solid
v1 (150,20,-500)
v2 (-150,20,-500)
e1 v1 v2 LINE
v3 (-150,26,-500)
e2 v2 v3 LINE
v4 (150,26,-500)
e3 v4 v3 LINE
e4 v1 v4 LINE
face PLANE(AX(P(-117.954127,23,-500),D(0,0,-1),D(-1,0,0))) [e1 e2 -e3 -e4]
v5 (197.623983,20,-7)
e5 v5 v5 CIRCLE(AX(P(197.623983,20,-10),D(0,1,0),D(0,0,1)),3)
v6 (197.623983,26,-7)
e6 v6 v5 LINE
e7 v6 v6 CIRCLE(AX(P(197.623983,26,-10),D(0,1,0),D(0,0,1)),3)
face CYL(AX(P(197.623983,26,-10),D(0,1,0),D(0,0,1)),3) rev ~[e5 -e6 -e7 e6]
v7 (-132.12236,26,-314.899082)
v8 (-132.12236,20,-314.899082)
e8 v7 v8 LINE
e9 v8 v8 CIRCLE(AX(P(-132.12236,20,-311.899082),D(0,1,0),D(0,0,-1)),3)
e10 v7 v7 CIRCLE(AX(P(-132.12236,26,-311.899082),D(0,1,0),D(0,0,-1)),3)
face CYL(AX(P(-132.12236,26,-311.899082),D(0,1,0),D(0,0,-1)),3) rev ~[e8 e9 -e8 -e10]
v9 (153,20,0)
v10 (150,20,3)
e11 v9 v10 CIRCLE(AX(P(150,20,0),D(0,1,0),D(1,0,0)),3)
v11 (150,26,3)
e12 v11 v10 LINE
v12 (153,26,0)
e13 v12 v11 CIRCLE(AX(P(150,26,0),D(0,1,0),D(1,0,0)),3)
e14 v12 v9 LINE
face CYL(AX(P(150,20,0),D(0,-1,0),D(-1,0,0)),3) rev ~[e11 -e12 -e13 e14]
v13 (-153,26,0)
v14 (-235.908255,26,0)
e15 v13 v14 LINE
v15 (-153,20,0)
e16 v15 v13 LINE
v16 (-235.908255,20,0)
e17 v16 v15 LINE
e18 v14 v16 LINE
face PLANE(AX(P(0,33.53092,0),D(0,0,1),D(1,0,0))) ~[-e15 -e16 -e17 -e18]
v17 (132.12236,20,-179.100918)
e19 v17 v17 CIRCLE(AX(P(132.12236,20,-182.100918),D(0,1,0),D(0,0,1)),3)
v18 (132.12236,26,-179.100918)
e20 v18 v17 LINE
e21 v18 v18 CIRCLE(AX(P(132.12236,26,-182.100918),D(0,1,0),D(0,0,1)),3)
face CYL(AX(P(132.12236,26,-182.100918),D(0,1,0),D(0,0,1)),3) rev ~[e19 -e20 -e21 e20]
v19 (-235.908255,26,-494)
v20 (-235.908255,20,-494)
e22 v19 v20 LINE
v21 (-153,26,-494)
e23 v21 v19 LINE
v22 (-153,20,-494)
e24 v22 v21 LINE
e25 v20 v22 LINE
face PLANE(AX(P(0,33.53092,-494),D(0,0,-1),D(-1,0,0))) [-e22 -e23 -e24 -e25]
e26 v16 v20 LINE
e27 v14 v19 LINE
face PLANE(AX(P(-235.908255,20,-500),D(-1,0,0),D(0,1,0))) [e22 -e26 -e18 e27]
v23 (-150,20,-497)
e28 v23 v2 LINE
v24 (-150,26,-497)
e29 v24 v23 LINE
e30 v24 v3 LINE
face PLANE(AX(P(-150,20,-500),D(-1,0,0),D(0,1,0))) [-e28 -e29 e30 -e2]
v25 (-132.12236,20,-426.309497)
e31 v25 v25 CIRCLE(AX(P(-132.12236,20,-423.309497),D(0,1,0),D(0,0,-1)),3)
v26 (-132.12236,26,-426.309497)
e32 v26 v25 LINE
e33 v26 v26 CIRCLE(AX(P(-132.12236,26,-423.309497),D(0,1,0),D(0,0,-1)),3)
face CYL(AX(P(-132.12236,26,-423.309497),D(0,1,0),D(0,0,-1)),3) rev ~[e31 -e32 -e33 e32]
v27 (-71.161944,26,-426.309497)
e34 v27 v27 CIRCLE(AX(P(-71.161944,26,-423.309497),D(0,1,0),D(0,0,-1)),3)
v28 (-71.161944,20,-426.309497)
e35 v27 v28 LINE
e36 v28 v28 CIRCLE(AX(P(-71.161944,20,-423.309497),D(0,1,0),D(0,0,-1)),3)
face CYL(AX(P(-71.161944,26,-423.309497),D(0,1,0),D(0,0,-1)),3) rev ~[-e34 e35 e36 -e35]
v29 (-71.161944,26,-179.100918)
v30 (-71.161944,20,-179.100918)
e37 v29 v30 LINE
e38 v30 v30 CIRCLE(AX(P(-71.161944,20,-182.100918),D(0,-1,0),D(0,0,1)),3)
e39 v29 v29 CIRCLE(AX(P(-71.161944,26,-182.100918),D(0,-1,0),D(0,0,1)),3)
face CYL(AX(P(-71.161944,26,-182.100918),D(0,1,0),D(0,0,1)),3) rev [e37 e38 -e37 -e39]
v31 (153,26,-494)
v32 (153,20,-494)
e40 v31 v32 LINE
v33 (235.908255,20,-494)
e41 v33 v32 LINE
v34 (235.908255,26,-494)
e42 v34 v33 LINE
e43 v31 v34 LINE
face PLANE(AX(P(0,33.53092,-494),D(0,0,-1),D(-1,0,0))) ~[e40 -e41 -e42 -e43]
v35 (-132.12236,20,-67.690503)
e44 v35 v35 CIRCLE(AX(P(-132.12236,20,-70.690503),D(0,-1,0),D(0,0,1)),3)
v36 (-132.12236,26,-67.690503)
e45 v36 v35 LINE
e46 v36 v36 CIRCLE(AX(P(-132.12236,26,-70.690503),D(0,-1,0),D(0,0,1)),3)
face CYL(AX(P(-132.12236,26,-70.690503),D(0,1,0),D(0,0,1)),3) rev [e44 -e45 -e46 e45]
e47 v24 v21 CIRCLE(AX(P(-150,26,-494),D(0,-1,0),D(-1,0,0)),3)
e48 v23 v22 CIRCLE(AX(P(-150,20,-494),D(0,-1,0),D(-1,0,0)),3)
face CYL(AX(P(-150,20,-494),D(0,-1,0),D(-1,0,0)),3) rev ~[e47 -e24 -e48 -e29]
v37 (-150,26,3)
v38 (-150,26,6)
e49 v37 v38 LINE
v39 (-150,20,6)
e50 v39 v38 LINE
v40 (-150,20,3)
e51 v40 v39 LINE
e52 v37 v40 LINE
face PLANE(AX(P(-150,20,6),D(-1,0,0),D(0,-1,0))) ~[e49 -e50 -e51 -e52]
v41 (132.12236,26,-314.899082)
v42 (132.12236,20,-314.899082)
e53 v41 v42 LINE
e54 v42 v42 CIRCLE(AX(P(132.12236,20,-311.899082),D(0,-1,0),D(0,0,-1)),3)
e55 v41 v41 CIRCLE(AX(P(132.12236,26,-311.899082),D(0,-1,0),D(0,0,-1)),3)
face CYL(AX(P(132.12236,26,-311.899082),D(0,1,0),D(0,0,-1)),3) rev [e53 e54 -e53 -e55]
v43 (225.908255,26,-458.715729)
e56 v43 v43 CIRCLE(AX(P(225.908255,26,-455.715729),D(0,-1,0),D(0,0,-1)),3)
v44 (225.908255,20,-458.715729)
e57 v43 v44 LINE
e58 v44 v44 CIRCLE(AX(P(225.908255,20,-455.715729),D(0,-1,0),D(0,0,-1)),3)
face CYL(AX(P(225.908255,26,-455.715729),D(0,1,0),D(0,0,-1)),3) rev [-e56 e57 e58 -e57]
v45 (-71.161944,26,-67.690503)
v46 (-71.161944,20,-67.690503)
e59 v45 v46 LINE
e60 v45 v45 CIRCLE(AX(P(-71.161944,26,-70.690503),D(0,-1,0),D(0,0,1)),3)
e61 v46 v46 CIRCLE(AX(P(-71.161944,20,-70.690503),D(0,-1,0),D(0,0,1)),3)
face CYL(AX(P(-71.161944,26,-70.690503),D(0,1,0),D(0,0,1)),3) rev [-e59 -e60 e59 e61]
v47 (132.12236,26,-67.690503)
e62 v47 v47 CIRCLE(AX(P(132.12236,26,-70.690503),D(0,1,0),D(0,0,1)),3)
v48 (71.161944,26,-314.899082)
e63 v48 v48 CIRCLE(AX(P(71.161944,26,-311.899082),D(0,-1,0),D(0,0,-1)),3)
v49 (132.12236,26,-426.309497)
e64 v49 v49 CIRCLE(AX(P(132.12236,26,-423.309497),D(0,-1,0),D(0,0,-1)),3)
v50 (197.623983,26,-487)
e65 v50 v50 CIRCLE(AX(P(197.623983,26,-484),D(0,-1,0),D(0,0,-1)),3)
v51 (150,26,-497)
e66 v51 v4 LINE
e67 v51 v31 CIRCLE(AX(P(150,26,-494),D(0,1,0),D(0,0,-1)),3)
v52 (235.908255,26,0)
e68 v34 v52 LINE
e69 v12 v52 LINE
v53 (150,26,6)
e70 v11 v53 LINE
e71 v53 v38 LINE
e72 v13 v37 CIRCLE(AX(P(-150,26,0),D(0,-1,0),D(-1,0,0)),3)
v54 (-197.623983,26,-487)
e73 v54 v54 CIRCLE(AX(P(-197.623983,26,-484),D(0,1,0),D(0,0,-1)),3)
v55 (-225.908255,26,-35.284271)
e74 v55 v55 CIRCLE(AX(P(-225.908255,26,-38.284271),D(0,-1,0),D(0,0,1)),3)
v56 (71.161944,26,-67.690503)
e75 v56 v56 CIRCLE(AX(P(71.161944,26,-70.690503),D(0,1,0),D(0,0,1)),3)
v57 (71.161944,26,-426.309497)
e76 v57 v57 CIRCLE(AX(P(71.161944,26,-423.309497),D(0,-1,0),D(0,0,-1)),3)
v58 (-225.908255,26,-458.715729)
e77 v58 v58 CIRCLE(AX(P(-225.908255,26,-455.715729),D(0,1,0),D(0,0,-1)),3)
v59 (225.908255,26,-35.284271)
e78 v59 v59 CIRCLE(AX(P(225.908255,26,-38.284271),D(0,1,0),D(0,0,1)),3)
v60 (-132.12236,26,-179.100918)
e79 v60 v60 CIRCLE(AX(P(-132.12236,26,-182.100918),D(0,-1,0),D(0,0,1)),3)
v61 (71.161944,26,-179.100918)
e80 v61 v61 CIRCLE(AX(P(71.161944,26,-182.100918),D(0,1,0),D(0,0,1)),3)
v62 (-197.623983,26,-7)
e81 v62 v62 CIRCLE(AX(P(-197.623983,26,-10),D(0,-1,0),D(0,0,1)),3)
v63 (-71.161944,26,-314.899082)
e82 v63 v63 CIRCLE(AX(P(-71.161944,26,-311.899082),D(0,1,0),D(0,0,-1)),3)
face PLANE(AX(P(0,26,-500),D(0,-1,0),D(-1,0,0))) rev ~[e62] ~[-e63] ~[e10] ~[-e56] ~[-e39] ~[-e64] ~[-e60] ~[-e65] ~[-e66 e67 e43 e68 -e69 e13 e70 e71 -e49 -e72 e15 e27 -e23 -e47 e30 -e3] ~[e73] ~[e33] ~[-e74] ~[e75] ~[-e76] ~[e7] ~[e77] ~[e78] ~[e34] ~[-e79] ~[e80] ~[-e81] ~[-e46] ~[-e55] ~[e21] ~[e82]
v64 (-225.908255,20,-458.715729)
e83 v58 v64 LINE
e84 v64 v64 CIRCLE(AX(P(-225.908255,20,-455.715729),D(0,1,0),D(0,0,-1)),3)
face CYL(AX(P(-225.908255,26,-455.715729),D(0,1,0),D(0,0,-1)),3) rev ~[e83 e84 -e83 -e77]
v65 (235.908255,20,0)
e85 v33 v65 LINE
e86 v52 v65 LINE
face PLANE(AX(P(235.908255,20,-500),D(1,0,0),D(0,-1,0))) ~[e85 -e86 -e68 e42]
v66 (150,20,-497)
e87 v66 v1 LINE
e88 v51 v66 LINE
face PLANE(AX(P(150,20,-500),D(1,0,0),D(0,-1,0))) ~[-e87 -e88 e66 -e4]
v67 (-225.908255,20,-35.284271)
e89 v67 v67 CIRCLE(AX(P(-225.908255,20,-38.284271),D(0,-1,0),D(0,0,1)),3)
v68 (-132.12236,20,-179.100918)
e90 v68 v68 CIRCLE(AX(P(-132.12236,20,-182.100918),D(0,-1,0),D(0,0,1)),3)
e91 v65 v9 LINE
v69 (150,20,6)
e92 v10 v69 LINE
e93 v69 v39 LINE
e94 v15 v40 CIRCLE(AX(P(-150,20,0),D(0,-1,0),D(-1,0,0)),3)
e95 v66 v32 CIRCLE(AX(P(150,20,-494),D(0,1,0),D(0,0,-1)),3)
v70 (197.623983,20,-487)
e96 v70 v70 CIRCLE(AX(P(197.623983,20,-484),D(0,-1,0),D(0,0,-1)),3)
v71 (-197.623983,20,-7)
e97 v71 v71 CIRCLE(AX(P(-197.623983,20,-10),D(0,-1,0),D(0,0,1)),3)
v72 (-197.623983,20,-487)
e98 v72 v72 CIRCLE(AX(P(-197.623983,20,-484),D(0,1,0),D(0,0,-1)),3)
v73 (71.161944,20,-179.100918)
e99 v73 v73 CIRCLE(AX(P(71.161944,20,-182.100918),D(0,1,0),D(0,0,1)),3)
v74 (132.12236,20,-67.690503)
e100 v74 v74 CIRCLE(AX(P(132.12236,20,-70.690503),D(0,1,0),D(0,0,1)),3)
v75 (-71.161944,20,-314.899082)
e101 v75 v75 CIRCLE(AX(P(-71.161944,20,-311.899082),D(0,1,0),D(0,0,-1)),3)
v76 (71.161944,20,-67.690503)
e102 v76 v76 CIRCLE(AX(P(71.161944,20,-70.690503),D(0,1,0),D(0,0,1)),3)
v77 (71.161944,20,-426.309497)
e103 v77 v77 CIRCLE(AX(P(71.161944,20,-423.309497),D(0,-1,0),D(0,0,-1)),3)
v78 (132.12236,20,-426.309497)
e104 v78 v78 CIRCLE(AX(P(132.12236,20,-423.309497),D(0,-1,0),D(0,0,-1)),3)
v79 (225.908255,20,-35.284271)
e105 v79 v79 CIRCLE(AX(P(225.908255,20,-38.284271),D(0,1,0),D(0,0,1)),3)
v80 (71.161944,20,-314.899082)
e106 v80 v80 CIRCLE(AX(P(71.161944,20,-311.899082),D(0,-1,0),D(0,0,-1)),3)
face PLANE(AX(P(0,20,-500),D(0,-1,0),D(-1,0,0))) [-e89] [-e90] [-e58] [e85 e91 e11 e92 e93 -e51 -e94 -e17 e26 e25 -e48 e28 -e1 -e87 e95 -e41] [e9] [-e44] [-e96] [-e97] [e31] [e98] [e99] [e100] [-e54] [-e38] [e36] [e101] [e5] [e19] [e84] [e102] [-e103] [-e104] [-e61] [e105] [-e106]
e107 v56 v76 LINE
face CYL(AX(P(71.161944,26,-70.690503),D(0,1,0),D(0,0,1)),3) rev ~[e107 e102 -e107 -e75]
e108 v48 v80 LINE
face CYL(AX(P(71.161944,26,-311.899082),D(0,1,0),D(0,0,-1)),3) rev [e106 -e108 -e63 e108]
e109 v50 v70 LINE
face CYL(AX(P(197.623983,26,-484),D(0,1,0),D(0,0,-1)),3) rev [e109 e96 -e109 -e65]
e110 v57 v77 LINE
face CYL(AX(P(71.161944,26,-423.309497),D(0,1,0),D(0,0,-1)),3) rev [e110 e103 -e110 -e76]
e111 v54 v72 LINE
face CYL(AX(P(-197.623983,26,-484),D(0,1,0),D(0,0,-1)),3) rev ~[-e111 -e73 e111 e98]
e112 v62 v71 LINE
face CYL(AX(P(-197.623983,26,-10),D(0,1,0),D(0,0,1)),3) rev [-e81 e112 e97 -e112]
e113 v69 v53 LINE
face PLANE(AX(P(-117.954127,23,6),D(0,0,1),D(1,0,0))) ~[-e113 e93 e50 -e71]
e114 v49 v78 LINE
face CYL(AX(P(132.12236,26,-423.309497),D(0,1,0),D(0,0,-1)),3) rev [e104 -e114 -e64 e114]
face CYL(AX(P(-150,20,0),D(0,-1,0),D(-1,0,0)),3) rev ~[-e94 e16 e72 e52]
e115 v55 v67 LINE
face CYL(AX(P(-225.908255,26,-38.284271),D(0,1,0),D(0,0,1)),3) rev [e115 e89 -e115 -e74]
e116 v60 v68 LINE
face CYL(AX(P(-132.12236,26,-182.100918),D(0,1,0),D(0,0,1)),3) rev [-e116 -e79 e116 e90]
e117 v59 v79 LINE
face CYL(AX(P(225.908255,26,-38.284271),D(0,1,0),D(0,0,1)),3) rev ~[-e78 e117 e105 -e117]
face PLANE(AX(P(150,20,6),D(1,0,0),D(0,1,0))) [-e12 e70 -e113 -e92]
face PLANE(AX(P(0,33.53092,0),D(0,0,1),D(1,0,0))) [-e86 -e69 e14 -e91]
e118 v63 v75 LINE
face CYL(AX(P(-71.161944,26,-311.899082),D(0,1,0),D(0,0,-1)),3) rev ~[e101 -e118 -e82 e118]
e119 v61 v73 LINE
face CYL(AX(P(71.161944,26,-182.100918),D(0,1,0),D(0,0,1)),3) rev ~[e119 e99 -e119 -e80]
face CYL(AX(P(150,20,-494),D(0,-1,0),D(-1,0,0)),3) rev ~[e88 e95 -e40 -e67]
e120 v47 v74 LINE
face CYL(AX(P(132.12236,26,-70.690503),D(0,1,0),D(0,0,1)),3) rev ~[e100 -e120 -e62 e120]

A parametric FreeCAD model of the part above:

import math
import FreeCAD as App
import Part
import Sketcher
from FreeCAD import Vector
Q = App.Units.Quantity

doc = App.newDocument("Part")
params = doc.addObject("Spreadsheet::Sheet", "Params")
for row, (alias, value) in enumerate([
    ("sketch1_radius", "50 mm"),
    ("sketch1_radius2", "3 mm"),
    ("sketch1_width", "400 mm"),
    ("sketch1_width2", "80 mm"),
    ("sketch1_width3", "60 mm"),
    ("pad1_length", "6 mm"),
    ("pocket1_length", "10 mm"),
    ("sketch3_radius", "50 mm"),
    ("sketch3_width", "200 mm"),
    ("sketch3_height", "61 mm"),
    ("sketch3_height2", "32.24 mm"),
    ("pad2_length", "6 mm"),
    ("sketch4_height", "6 mm"),
    ("pad3_length", "253 mm"),
    ("sketch5_height", "6 mm"),
    ("pocket2_length", "6 mm"),
    ("sketch6_diameter", "6 mm"),
    ("sketch7_diameter", "6 mm"),
], start=1):
    params.set(f"A{row}", alias)
    params.set(f"B{row}", "=" + value)
    params.setAlias(f"B{row}", alias)

body = doc.addObject("PartDesign::Body", "Body")

sketch1 = body.newObject("Sketcher::SketchObject", "Sketch")
sketch1.AttachmentSupport = (doc.getObject("XY_Plane"), [""])
sketch1.MapMode = "FlatFace"
sketch1.addGeometry([
    Part.LineSegment(Vector(-200, 0, 0), Vector(200, 0, 0)),
    Part.ArcOfCircle(Part.Circle(Vector(250, 0, 0), Vector(0, 0, 1), 50), math.radians(-180), math.radians(-143)),
    Part.LineSegment(Vector(210, -30, 0), Vector(290, -30, 0)),
    Part.ArcOfCircle(Part.Circle(Vector(250, 0, 0), Vector(0, 0, 1), 50), math.radians(-37), math.radians(38)),
    Part.ArcOfCircle(Part.Circle(Vector(250, 61, 0), Vector(0, 0, 1), 50), math.radians(-38), math.radians(72)),
    Part.LineSegment(Vector(265.8, 108.4, 0), Vector(246.4, 36, 0)),
    Part.ArcOfCircle(Part.Circle(Vector(243.5, 36.8, 0), Vector(0, 0, 1), 3), math.radians(165), math.radians(345)),
    Part.LineSegment(Vector(240.6, 37.5, 0), Vector(260, 110, 0)),
    Part.ArcOfCircle(Part.Circle(Vector(250, 61, 0), Vector(0, 0, 1), 50), math.radians(78), math.radians(180)),
    Part.LineSegment(Vector(200, 61, 0), Vector(140, 61, 0)),
    Part.LineSegment(Vector(140, 61, 0), Vector(150.8, 58.4, 0)),
    Part.LineSegment(Vector(150.8, 58.4, 0), Vector(139, 52.7, 0)),
    Part.LineSegment(Vector(139, 52.7, 0), Vector(160.1, 40.2, 0)),
    Part.LineSegment(Vector(160.1, 40.2, 0), Vector(137.6, 43.4, 0)),
    Part.LineSegment(Vector(137.6, 43.4, 0), Vector(153.2, 34.2, 0)),
    Part.LineSegment(Vector(153.2, 34.2, 0), Vector(138.3, 30.3, 0)),
    Part.LineSegment(Vector(138.3, 30.3, 0), Vector(144.2, 26, 0)),
    Part.LineSegment(Vector(144.2, 26, 0), Vector(150, 26, 0)),
    Part.ArcOfCircle(Part.Circle(Vector(150, 23, 0), Vector(0, 0, 1), 3), math.radians(-90), math.radians(90)),
    Part.LineSegment(Vector(150, 20, 0), Vector(-150, 20, 0)),
    Part.ArcOfCircle(Part.Circle(Vector(-150, 23, 0), Vector(0, 0, 1), 3), math.radians(90), math.radians(270)),
    Part.LineSegment(Vector(-150, 26, 0), Vector(-144.2, 26, 0)),
    Part.LineSegment(Vector(-144.2, 26, 0), Vector(-138.3, 30.3, 0)),
    Part.LineSegment(Vector(-138.3, 30.3, 0), Vector(-153.2, 34.2, 0)),
    Part.LineSegment(Vector(-153.2, 34.2, 0), Vector(-137.6, 43.4, 0)),
    Part.LineSegment(Vector(-137.6, 43.4, 0), Vector(-160.1, 40.2, 0)),
    Part.LineSegment(Vector(-160.1, 40.2, 0), Vector(-139, 52.7, 0)),
    Part.LineSegment(Vector(-139, 52.7, 0), Vector(-150.8, 58.4, 0)),
    Part.LineSegment(Vector(-150.8, 58.4, 0), Vector(-140, 61, 0)),
    Part.LineSegment(Vector(-140, 61, 0), Vector(-200, 61, 0)),
    Part.ArcOfCircle(Part.Circle(Vector(-250, 61, 0), Vector(0, 0, 1), 50), math.radians(0), math.radians(102)),
    Part.LineSegment(Vector(-260, 110, 0), Vector(-240.6, 37.5, 0)),
    Part.ArcOfCircle(Part.Circle(Vector(-243.5, 36.8, 0), Vector(0, 0, 1), 3), math.radians(-165), math.radians(15)),
    Part.LineSegment(Vector(-246.4, 36, 0), Vector(-265.8, 108.4, 0)),
    Part.ArcOfCircle(Part.Circle(Vector(-250, 61, 0), Vector(0, 0, 1), 50), math.radians(108), math.radians(218)),
    Part.ArcOfCircle(Part.Circle(Vector(-250, 0, 0), Vector(0, 0, 1), 50), math.radians(142), math.radians(217)),
    Part.LineSegment(Vector(-290, -30, 0), Vector(-210, -30, 0)),
    Part.ArcOfCircle(Part.Circle(Vector(-250, 0, 0), Vector(0, 0, 1), 50), math.radians(-37), math.radians(0)),
], False)
sketch1.addConstraint([
    Sketcher.Constraint("Coincident", 0, 2, 1, 1),
    Sketcher.Constraint("Coincident", 1, 2, 2, 1),
    Sketcher.Constraint("Coincident", 2, 2, 3, 1),
    Sketcher.Constraint("Coincident", 3, 2, 4, 1),
    Sketcher.Constraint("Coincident", 4, 2, 5, 1),
    Sketcher.Constraint("Tangent", 5, 2, 6, 2),
    Sketcher.Constraint("Tangent", 6, 1, 7, 1),
    Sketcher.Constraint("Coincident", 7, 2, 8, 1),
    Sketcher.Constraint("Coincident", 8, 2, 9, 1),
    Sketcher.Constraint("Coincident", 9, 2, 10, 1),
    Sketcher.Constraint("Coincident", 10, 2, 11, 1),
    Sketcher.Constraint("Coincident", 11, 2, 12, 1),
    Sketcher.Constraint("Coincident", 12, 2, 13, 1),
    Sketcher.Constraint("Coincident", 13, 2, 14, 1),
    Sketcher.Constraint("Coincident", 14, 2, 15, 1),
    Sketcher.Constraint("Coincident", 15, 2, 16, 1),
    Sketcher.Constraint("Coincident", 16, 2, 17, 1),
    Sketcher.Constraint("Tangent", 17, 2, 18, 2),
    Sketcher.Constraint("Tangent", 18, 1, 19, 1),
    Sketcher.Constraint("Tangent", 19, 2, 20, 2),
    Sketcher.Constraint("Tangent", 20, 1, 21, 1),
    Sketcher.Constraint("Coincident", 21, 2, 22, 1),
    Sketcher.Constraint("Coincident", 22, 2, 23, 1),
    Sketcher.Constraint("Coincident", 23, 2, 24, 1),
    Sketcher.Constraint("Coincident", 24, 2, 25, 1),
    Sketcher.Constraint("Coincident", 25, 2, 26, 1),
    Sketcher.Constraint("Coincident", 26, 2, 27, 1),
    Sketcher.Constraint("Coincident", 27, 2, 28, 1),
    Sketcher.Constraint("Coincident", 28, 2, 29, 1),
    Sketcher.Constraint("Coincident", 29, 2, 30, 1),
    Sketcher.Constraint("Coincident", 30, 2, 31, 1),
    Sketcher.Constraint("Tangent", 31, 2, 32, 2),
    Sketcher.Constraint("Tangent", 32, 1, 33, 1),
    Sketcher.Constraint("Coincident", 33, 2, 34, 1),
    Sketcher.Constraint("Coincident", 34, 2, 35, 1),
    Sketcher.Constraint("Coincident", 35, 2, 36, 1),
    Sketcher.Constraint("Coincident", 36, 2, 37, 1),
    Sketcher.Constraint("Coincident", 37, 2, 0, 1),
    Sketcher.Constraint("Horizontal", 0),
    Sketcher.Constraint("Horizontal", 2),
    Sketcher.Constraint("Horizontal", 9),
    Sketcher.Constraint("Horizontal", 17),
    Sketcher.Constraint("Horizontal", 19),
    Sketcher.Constraint("Horizontal", 21),
    Sketcher.Constraint("Horizontal", 29),
    Sketcher.Constraint("Horizontal", 36),
    Sketcher.Constraint("Coincident", 3, 3, 1, 3),
    Sketcher.Constraint("Coincident", 8, 3, 4, 3),
    Sketcher.Constraint("Coincident", 34, 3, 30, 3),
    Sketcher.Constraint("Coincident", 37, 3, 35, 3),
    Sketcher.Constraint("Equal", 1, 3),
    Sketcher.Constraint("Equal", 3, 4),
    Sketcher.Constraint("Equal", 4, 8),
    Sketcher.Constraint("Equal", 6, 18),
    Sketcher.Constraint("Equal", 18, 20),
    Sketcher.Constraint("Equal", 8, 30),
    Sketcher.Constraint("Equal", 20, 32),
    Sketcher.Constraint("Equal", 30, 34),
    Sketcher.Constraint("Equal", 34, 35),
    Sketcher.Constraint("Equal", 35, 37),
    Sketcher.Constraint("Symmetric", 1, 3, 35, 3, -1, 1),
    Sketcher.Constraint("Symmetric", 4, 3, 30, 3, -2),
    Sketcher.Constraint("Symmetric", 6, 3, 32, 3, -2),
    Sketcher.Constraint("Symmetric", 15, 2, 22, 2, -2),
    Sketcher.Constraint("Symmetric", 14, 2, 23, 2, -2),
    Sketcher.Constraint("Symmetric", 13, 2, 24, 2, -2),
    Sketcher.Constraint("Symmetric", 12, 2, 25, 2, -2),
    Sketcher.Constraint("Symmetric", 11, 2, 26, 2, -2),
    Sketcher.Constraint("Symmetric", 10, 2, 27, 2, -2),
    Sketcher.Constraint("Symmetric", 9, 2, 28, 2, -2),
    Sketcher.Constraint("Symmetric", 2, 2, 35, 2, -2),
    Sketcher.Constraint("PointOnObject", 0, 2, -1),
    Sketcher.Constraint("Parallel", 5, 7),
    Sketcher.Constraint("Parallel", 31, 33),
    Sketcher.Constraint("Horizontal", 34, 3, 8, 2),
    Sketcher.Constraint("Horizontal", 7, 2, 30, 2),
    Sketcher.Constraint("Vertical", 3, 3, 4, 3),
    Sketcher.Constraint("Equal", 17, 21),
    Sketcher.Constraint("Equal", 5, 7),
    Sketcher.Constraint("Equal", 16, 22),
    Sketcher.Constraint("Radius", 1, Q("50 mm")),
    Sketcher.Constraint("Radius", 6, Q("3 mm")),
    Sketcher.Constraint("DistanceX", 0, 1, 0, 2, Q("400 mm")),
    Sketcher.Constraint("DistanceX", 2, 1, 2, 2, Q("80 mm")),
    Sketcher.Constraint("DistanceX", 9, 2, 9, 1, Q("60 mm")),
    Sketcher.Constraint("DistanceX", 19, 2, 19, 1, Q("300 mm")),
    Sketcher.Constraint("Angle", 5, Q("-105 deg")),
    Sketcher.Constraint("Distance", 5, Q("75 mm")),
    Sketcher.Constraint("DistanceY", -1, 1, 4, 3, Q("61 mm")),
    Sketcher.Constraint("DistanceY", -1, 1, 18, 3, Q("23 mm")),
    Sketcher.Constraint("DistanceX", -1, 1, 13, 2, Q("137.597499 mm")),
    Sketcher.Constraint("DistanceX", -1, 1, 14, 2, Q("153.154101 mm")),
    Sketcher.Constraint("DistanceY", 15, 2, 11, 2, Q("22.4375 mm")),
    Sketcher.Constraint("DistanceX", 32, 3, 21, 2, Q("99.353702 mm")),
    Sketcher.Constraint("Distance", 14, Q("18.095462 mm")),
    Sketcher.Constraint("Distance", 16, Q("7.29532 mm")),
    Sketcher.Constraint("DistanceY", -1, 1, 10, 2, Q("58.387579 mm")),
    Sketcher.Constraint("DistanceX", -1, 1, 11, 2, Q("139.047219 mm")),
    Sketcher.Constraint("DistanceY", -1, 1, 12, 2, Q("40.245062 mm")),
    Sketcher.Constraint("DistanceX", 10, 2, 6, 1, Q("89.823788 mm")),
    Sketcher.Constraint("DistanceY", 13, 2, 11, 2, Q("9.304662 mm")),
    Sketcher.Constraint("DistanceY", 12, 2, 13, 2, Q("3.192471 mm")),
    Sketcher.Constraint("DistanceX", 15, 2, 12, 2, Q("21.82282 mm")),
])
sketch1.setExpression("Constraints[80]", "Params.sketch1_radius")
sketch1.setExpression("Constraints[81]", "Params.sketch1_radius2")
sketch1.setExpression("Constraints[82]", "Params.sketch1_width")
sketch1.setExpression("Constraints[83]", "Params.sketch1_width2")
sketch1.setExpression("Constraints[84]", "Params.sketch1_width3")
pad1 = body.newObject("PartDesign::Pad", "Pad")
pad1.Profile = sketch1
pad1.setExpression("Length", "Params.pad1_length")

sketch2 = body.newObject("Sketcher::SketchObject", "Sketch001")
sketch2.AttachmentSupport = (doc.getObject("XY_Plane"), [""])
sketch2.MapMode = "FlatFace"
sketch2.AttachmentOffset = App.Placement(Vector(0, 0, 6), App.Rotation())
sketch2.addGeometry([
    Part.LineSegment(Vector(-380, 0, 0), Vector(-342, 0, 0)),
    Part.LineSegment(Vector(-342, 0, 0), Vector(-342, -127, 0)),
    Part.LineSegment(Vector(-342, -127, 0), Vector(-124, -127, 0)),
    Part.LineSegment(Vector(-124, -127, 0), Vector(-124, 0, 0)),
    Part.LineSegment(Vector(-124, 0, 0), Vector(0, 0, 0)),
    Part.LineSegment(Vector(0, 0, 0), Vector(0, 200, 0)),
    Part.LineSegment(Vector(0, 200, 0), Vector(-380, 200, 0)),
    Part.LineSegment(Vector(-380, 200, 0), Vector(-380, 0, 0)),
], False)
sketch2.addConstraint([
    Sketcher.Constraint("Coincident", 0, 2, 1, 1),
    Sketcher.Constraint("Coincident", 1, 2, 2, 1),
    Sketcher.Constraint("Coincident", 2, 2, 3, 1),
    Sketcher.Constraint("Coincident", 3, 2, 4, 1),
    Sketcher.Constraint("Coincident", 4, 2, 5, 1),
    Sketcher.Constraint("Coincident", 5, 2, 6, 1),
    Sketcher.Constraint("Coincident", 6, 2, 7, 1),
    Sketcher.Constraint("Coincident", 7, 2, 0, 1),
    Sketcher.Constraint("Horizontal", 0),
    Sketcher.Constraint("Vertical", 1),
    Sketcher.Constraint("Horizontal", 2),
    Sketcher.Constraint("Vertical", 3),
    Sketcher.Constraint("Horizontal", 4),
    Sketcher.Constraint("Vertical", 5),
    Sketcher.Constraint("Horizontal", 6),
    Sketcher.Constraint("Vertical", 7),
    Sketcher.Constraint("Coincident", 4, 2, -1, 1),
    Sketcher.Constraint("PointOnObject", 0, 2, -1),
    Sketcher.Constraint("DistanceX", 0, 1, 0, 2, Q("37.75762 mm")),
    Sketcher.Constraint("DistanceX", 6, 2, 6, 1, Q("379.56344 mm")),
    Sketcher.Constraint("DistanceY", 1, 2, 1, 1, Q("126.67009 mm")),
    Sketcher.Constraint("DistanceX", 2, 1, 2, 2, Q("217.603124 mm")),
    Sketcher.Constraint("DistanceY", 5, 1, 5, 2, Q("200.231406 mm")),
])
pocket1 = body.newObject("PartDesign::Pocket", "Pocket")
pocket1.Profile = sketch2
pocket1.setExpression("Length", "Params.pocket1_length")
body2 = doc.addObject("PartDesign::Body", "Body001")

sketch3 = body2.newObject("Sketcher::SketchObject", "Sketch002")
sketch3.Placement = App.Placement(Vector(215.105398, -57.637318, 0), App.Rotation(Vector(0, 0, -1), Vector(0.258819045, 0.965925826, 0), Vector(0.965925826, -0.258819045, 0), "ZXY"))
sketch3.addGeometry([
    Part.LineSegment(Vector(247, 63, 0), Vector(247, 124, 0)),
    Part.LineSegment(Vector(247, 124, 0), Vector(47, 124, 0)),
    Part.ArcOfCircle(Part.Circle(Vector(-3, 124, 0), Vector(0, 0, 1), 50), math.radians(0), math.radians(90)),
    Part.ArcOfCircle(Part.Circle(Vector(-3, 124, 0), Vector(0, 0, 1), 50), math.radians(90), math.radians(218)),
    Part.ArcOfCircle(Part.Circle(Vector(-3, 63, 0), Vector(0, 0, 1), 50), math.radians(142), math.radians(220)),
    Part.LineSegment(Vector(-41, 30, 0), Vector(35, 30, 0)),
    Part.ArcOfCircle(Part.Circle(Vector(-3, 63, 0), Vector(0, 0, 1), 50), math.radians(-40), math.radians(0)),
    Part.LineSegment(Vector(47, 63, 0), Vector(247, 63, 0)),
], False)
sketch3.addConstraint([
    Sketcher.Constraint("Coincident", 0, 2, 1, 1),
    Sketcher.Constraint("Coincident", 1, 2, 2, 1),
    Sketcher.Constraint("Tangent", 2, 2, 3, 1),
    Sketcher.Constraint("Coincident", 3, 2, 4, 1),
    Sketcher.Constraint("Coincident", 4, 2, 5, 1),
    Sketcher.Constraint("Coincident", 5, 2, 6, 1),
    Sketcher.Constraint("Coincident", 6, 2, 7, 1),
    Sketcher.Constraint("Coincident", 7, 2, 0, 1),
    Sketcher.Constraint("Vertical", 0),
    Sketcher.Constraint("Horizontal", 1),
    Sketcher.Constraint("Horizontal", 5),
    Sketcher.Constraint("Horizontal", 7),
    Sketcher.Constraint("Coincident", 6, 3, 4, 3),
    Sketcher.Constraint("Equal", 2, 3),
    Sketcher.Constraint("Equal", 3, 4),
    Sketcher.Constraint("Equal", 4, 6),
    Sketcher.Constraint("Horizontal", 3, 3, 0, 2),
    Sketcher.Constraint("Horizontal", 4, 3, 6, 2),
    Sketcher.Constraint("Vertical", 3, 3, 4, 3),
    Sketcher.Constraint("Vertical", 6, 3, 2, 2),
    Sketcher.Constraint("Radius", 2, Q("50 mm")),
    Sketcher.Constraint("DistanceX", 1, 2, 1, 1, Q("200 mm")),
    Sketcher.Constraint("DistanceY", 0, 1, 0, 2, Q("61 mm")),
    Sketcher.Constraint("DistanceX", 2, 3, -1, 1, Q("3 mm")),
    Sketcher.Constraint("DistanceY", 4, 2, 4, 3, Q("32.24 mm")),
    Sketcher.Constraint("DistanceY", -1, 1, 2, 3, Q("123.536155 mm")),
])
sketch3.setExpression("Constraints[20]", "Params.sketch3_radius")
sketch3.setExpression("Constraints[21]", "Params.sketch3_width")
sketch3.setExpression("Constraints[22]", "Params.sketch3_height")
sketch3.setExpression("Constraints[24]", "Params.sketch3_height2")
pad2 = body2.newObject("PartDesign::Pad", "Pad001")
pad2.Profile = sketch3
pad2.setExpression("Length", "Params.pad2_length")
body3 = doc.addObject("PartDesign::Body", "Body002")

sketch4 = body3.newObject("Sketcher::SketchObject", "Sketch003")
sketch4.AttachmentSupport = (doc.getObject("XY_Plane002"), [""])
sketch4.MapMode = "FlatFace"
sketch4.AttachmentOffset = App.Placement(Vector(0, 0, 6), App.Rotation())
sketch4.addGeometry([
    Part.LineSegment(Vector(0, 26, 0), Vector(0, 20, 0)),
    Part.LineSegment(Vector(0, 20, 0), Vector(236, 20, 0)),
    Part.LineSegment(Vector(236, 20, 0), Vector(236, 26, 0)),
    Part.LineSegment(Vector(236, 26, 0), Vector(0, 26, 0)),
], False)
sketch4.addConstraint([
    Sketcher.Constraint("Coincident", 0, 2, 1, 1),
    Sketcher.Constraint("Coincident", 1, 2, 2, 1),
    Sketcher.Constraint("Coincident", 2, 2, 3, 1),
    Sketcher.Constraint("Coincident", 3, 2, 0, 1),
    Sketcher.Constraint("Vertical", 0),
    Sketcher.Constraint("Horizontal", 1),
    Sketcher.Constraint("Vertical", 2),
    Sketcher.Constraint("Horizontal", 3),
    Sketcher.Constraint("PointOnObject", 0, 2, -2),
    Sketcher.Constraint("DistanceY", 0, 2, 0, 1, Q("6 mm")),
    Sketcher.Constraint("DistanceY", -1, 1, 0, 2, Q("20 mm")),
    Sketcher.Constraint("DistanceX", 1, 1, 1, 2, Q("235.908255 mm")),
])
sketch4.setExpression("Constraints[9]", "Params.sketch4_height")
pad3 = body3.newObject("PartDesign::Pad", "Pad002")
pad3.Profile = sketch4
pad3.setExpression("Length", "Params.pad3_length")
pad3.Reversed = True
doc.recompute()

boolean = body3.newObject("PartDesign::Boolean", "Boolean")
boolean.Type = "Cut"
boolean.addObjects([body])
doc.recompute()

boolean2 = body3.newObject("PartDesign::Boolean", "Boolean001")
boolean2.Type = "Cut"
boolean2.addObjects([body2])

sketch5 = body3.newObject("Sketcher::SketchObject", "Sketch004")
sketch5.AttachmentSupport = (doc.getObject("XY_Plane002"), [""])
sketch5.MapMode = "FlatFace"
sketch5.AttachmentOffset = App.Placement(Vector(0, 0, 6), App.Rotation())
sketch5.addGeometry([
    Part.LineSegment(Vector(150, 26, 0), Vector(150, 20, 0)),
    Part.LineSegment(Vector(150, 20, 0), Vector(156, 20, 0)),
    Part.LineSegment(Vector(156, 20, 0), Vector(156, 26, 0)),
    Part.LineSegment(Vector(156, 26, 0), Vector(150, 26, 0)),
], False)
sketch5.addConstraint([
    Sketcher.Constraint("Coincident", 0, 2, 1, 1),
    Sketcher.Constraint("Coincident", 1, 2, 2, 1),
    Sketcher.Constraint("Coincident", 2, 2, 3, 1),
    Sketcher.Constraint("Coincident", 3, 2, 0, 1),
    Sketcher.Constraint("Vertical", 0),
    Sketcher.Constraint("Horizontal", 1),
    Sketcher.Constraint("Vertical", 2),
    Sketcher.Constraint("Horizontal", 3),
    Sketcher.Constraint("DistanceY", 0, 2, 0, 1, Q("6 mm")),
    Sketcher.Constraint("DistanceX", -1, 1, 0, 2, Q("150 mm")),
    Sketcher.Constraint("DistanceY", -1, 1, 0, 2, Q("20 mm")),
    Sketcher.Constraint("DistanceX", 1, 1, 1, 2, Q("6.266008 mm")),
])
sketch5.setExpression("Constraints[8]", "Params.sketch5_height")
pocket2 = body3.newObject("PartDesign::Pocket", "Pocket001")
pocket2.Profile = sketch5
pocket2.setExpression("Length", "Params.pocket2_length")

sketch6 = body3.newObject("Sketcher::SketchObject", "Sketch005")
sketch6.AttachmentSupport = (doc.getObject("XZ_Plane002"), [""])
sketch6.MapMode = "FlatFace"
sketch6.AttachmentOffset = App.Placement(Vector(0, 0, -26), App.Rotation())
sketch6.addGeometry([
    Part.Circle(Vector(225.9, -38.3, 0), Vector(0, 0, 1), 3),
    Part.Circle(Vector(197.6, -10, 0), Vector(0, 0, 1), 3),
    Part.Circle(Vector(71.2, -70.7, 0), Vector(0, 0, 1), 3),
    Part.Circle(Vector(132.1, -70.7, 0), Vector(0, 0, 1), 3),
    Part.Circle(Vector(71.2, -182.1, 0), Vector(0, 0, 1), 3),
    Part.Circle(Vector(132.1, -182.1, 0), Vector(0, 0, 1), 3),
], False)
sketch6.addConstraint([
    Sketcher.Constraint("Equal", 0, 1),
    Sketcher.Constraint("Equal", 1, 2),
    Sketcher.Constraint("Equal", 2, 3),
    Sketcher.Constraint("Equal", 3, 4),
    Sketcher.Constraint("Equal", 4, 5),
    Sketcher.Constraint("Horizontal", 2, 3, 3, 3),
    Sketcher.Constraint("Horizontal", 4, 3, 5, 3),
    Sketcher.Constraint("Vertical", 2, 3, 4, 3),
    Sketcher.Constraint("Vertical", 3, 3, 5, 3),
    Sketcher.Constraint("Diameter", 0, Q("6 mm")),
    Sketcher.Constraint("DistanceY", 1, 3, -1, 1, Q("10 mm")),
    Sketcher.Constraint("DistanceY", 0, 3, -1, 1, Q("38.284271 mm")),
    Sketcher.Constraint("DistanceX", -1, 1, 3, 3, Q("132.12236 mm")),
    Sketcher.Constraint("DistanceY", 4, 3, -1, 1, Q("182.100918 mm")),
    Sketcher.Constraint("DistanceX", 1, 3, 0, 3, Q("28.284271 mm")),
    Sketcher.Constraint("DistanceX", 2, 3, 1, 3, Q("126.462039 mm")),
    Sketcher.Constraint("DistanceY", 2, 3, 0, 3, Q("32.406231 mm")),
    Sketcher.Constraint("DistanceX", -1, 1, 0, 3, Q("225.908255 mm")),
])
sketch6.setExpression("Constraints[9]", "Params.sketch6_diameter")
pocket3 = body3.newObject("PartDesign::Pocket", "Pocket002")
pocket3.Profile = sketch6
pocket3.Type = "ThroughAll"
pocket3.Reversed = True
body4 = doc.addObject("PartDesign::Body", "Body003")
doc.recompute()

body4.BaseFeature = body3
doc.recompute()

mirroring = doc.addObject("Part::Mirroring", "Mirroring")
mirroring.Source = body3
mirroring.Base = Vector(0, 26, -247)
mirroring.Normal = Vector(-1, 0, 0)
body5 = doc.addObject("PartDesign::Body", "Body004")
body5.BaseFeature = mirroring
boolean3 = body4.newObject("PartDesign::Boolean", "Boolean002")
boolean3.Type = "Fuse"
boolean3.addObjects([body5])
doc.recompute()
body6 = doc.addObject("PartDesign::Body", "Body005")
doc.recompute()

body6.BaseFeature = body4
doc.recompute()

mirroring2 = doc.addObject("Part::Mirroring", "Mirroring001")
mirroring2.Source = body4
mirroring2.Base = Vector(0, 0, -247)
mirroring2.Normal = Vector(0, 0, 1)
body7 = doc.addObject("PartDesign::Body", "Body006")
body7.BaseFeature = mirroring2
boolean4 = body6.newObject("PartDesign::Boolean", "Boolean003")
boolean4.Type = "Fuse"
boolean4.addObjects([body7])
doc.recompute()

sketch7 = body6.newObject("Sketcher::SketchObject", "Sketch006")
sketch7.AttachmentSupport = (doc.getObject("XZ_Plane005"), [""])
sketch7.MapMode = "FlatFace"
sketch7.AttachmentOffset = App.Placement(Vector(0, 0, -20), App.Rotation())
sketch7.addGeometry([
    Part.Circle(Vector(-150, 0, 0), Vector(0, 0, 1), 3),
    Part.Circle(Vector(150, 0, 0), Vector(0, 0, 1), 3),
    Part.Circle(Vector(150, -494, 0), Vector(0, 0, 1), 3),
    Part.Circle(Vector(-150, -494, 0), Vector(0, 0, 1), 3),
], False)
sketch7.addConstraint([
    Sketcher.Constraint("Equal", 0, 1),
    Sketcher.Constraint("Equal", 1, 2),
    Sketcher.Constraint("Equal", 2, 3),
    Sketcher.Constraint("Symmetric", 0, 3, 1, 3, -1, 1),
    Sketcher.Constraint("Symmetric", 2, 3, 3, 3, -2),
    Sketcher.Constraint("PointOnObject", 0, 3, -1),
    Sketcher.Constraint("Vertical", 1, 3, 2, 3),
    Sketcher.Constraint("Diameter", 0, Q("6 mm")),
    Sketcher.Constraint("DistanceX", 0, 3, -1, 1, Q("150 mm")),
    Sketcher.Constraint("DistanceY", 2, 3, -1, 1, Q("494 mm")),
])
sketch7.setExpression("Constraints[7]", "Params.sketch7_diameter")
pocket4 = body6.newObject("PartDesign::Pocket", "Pocket003")
pocket4.Profile = sketch7
pocket4.Type = "ThroughAll"
mirroring.Visibility = False
mirroring2.Visibility = False

doc.recompute()
